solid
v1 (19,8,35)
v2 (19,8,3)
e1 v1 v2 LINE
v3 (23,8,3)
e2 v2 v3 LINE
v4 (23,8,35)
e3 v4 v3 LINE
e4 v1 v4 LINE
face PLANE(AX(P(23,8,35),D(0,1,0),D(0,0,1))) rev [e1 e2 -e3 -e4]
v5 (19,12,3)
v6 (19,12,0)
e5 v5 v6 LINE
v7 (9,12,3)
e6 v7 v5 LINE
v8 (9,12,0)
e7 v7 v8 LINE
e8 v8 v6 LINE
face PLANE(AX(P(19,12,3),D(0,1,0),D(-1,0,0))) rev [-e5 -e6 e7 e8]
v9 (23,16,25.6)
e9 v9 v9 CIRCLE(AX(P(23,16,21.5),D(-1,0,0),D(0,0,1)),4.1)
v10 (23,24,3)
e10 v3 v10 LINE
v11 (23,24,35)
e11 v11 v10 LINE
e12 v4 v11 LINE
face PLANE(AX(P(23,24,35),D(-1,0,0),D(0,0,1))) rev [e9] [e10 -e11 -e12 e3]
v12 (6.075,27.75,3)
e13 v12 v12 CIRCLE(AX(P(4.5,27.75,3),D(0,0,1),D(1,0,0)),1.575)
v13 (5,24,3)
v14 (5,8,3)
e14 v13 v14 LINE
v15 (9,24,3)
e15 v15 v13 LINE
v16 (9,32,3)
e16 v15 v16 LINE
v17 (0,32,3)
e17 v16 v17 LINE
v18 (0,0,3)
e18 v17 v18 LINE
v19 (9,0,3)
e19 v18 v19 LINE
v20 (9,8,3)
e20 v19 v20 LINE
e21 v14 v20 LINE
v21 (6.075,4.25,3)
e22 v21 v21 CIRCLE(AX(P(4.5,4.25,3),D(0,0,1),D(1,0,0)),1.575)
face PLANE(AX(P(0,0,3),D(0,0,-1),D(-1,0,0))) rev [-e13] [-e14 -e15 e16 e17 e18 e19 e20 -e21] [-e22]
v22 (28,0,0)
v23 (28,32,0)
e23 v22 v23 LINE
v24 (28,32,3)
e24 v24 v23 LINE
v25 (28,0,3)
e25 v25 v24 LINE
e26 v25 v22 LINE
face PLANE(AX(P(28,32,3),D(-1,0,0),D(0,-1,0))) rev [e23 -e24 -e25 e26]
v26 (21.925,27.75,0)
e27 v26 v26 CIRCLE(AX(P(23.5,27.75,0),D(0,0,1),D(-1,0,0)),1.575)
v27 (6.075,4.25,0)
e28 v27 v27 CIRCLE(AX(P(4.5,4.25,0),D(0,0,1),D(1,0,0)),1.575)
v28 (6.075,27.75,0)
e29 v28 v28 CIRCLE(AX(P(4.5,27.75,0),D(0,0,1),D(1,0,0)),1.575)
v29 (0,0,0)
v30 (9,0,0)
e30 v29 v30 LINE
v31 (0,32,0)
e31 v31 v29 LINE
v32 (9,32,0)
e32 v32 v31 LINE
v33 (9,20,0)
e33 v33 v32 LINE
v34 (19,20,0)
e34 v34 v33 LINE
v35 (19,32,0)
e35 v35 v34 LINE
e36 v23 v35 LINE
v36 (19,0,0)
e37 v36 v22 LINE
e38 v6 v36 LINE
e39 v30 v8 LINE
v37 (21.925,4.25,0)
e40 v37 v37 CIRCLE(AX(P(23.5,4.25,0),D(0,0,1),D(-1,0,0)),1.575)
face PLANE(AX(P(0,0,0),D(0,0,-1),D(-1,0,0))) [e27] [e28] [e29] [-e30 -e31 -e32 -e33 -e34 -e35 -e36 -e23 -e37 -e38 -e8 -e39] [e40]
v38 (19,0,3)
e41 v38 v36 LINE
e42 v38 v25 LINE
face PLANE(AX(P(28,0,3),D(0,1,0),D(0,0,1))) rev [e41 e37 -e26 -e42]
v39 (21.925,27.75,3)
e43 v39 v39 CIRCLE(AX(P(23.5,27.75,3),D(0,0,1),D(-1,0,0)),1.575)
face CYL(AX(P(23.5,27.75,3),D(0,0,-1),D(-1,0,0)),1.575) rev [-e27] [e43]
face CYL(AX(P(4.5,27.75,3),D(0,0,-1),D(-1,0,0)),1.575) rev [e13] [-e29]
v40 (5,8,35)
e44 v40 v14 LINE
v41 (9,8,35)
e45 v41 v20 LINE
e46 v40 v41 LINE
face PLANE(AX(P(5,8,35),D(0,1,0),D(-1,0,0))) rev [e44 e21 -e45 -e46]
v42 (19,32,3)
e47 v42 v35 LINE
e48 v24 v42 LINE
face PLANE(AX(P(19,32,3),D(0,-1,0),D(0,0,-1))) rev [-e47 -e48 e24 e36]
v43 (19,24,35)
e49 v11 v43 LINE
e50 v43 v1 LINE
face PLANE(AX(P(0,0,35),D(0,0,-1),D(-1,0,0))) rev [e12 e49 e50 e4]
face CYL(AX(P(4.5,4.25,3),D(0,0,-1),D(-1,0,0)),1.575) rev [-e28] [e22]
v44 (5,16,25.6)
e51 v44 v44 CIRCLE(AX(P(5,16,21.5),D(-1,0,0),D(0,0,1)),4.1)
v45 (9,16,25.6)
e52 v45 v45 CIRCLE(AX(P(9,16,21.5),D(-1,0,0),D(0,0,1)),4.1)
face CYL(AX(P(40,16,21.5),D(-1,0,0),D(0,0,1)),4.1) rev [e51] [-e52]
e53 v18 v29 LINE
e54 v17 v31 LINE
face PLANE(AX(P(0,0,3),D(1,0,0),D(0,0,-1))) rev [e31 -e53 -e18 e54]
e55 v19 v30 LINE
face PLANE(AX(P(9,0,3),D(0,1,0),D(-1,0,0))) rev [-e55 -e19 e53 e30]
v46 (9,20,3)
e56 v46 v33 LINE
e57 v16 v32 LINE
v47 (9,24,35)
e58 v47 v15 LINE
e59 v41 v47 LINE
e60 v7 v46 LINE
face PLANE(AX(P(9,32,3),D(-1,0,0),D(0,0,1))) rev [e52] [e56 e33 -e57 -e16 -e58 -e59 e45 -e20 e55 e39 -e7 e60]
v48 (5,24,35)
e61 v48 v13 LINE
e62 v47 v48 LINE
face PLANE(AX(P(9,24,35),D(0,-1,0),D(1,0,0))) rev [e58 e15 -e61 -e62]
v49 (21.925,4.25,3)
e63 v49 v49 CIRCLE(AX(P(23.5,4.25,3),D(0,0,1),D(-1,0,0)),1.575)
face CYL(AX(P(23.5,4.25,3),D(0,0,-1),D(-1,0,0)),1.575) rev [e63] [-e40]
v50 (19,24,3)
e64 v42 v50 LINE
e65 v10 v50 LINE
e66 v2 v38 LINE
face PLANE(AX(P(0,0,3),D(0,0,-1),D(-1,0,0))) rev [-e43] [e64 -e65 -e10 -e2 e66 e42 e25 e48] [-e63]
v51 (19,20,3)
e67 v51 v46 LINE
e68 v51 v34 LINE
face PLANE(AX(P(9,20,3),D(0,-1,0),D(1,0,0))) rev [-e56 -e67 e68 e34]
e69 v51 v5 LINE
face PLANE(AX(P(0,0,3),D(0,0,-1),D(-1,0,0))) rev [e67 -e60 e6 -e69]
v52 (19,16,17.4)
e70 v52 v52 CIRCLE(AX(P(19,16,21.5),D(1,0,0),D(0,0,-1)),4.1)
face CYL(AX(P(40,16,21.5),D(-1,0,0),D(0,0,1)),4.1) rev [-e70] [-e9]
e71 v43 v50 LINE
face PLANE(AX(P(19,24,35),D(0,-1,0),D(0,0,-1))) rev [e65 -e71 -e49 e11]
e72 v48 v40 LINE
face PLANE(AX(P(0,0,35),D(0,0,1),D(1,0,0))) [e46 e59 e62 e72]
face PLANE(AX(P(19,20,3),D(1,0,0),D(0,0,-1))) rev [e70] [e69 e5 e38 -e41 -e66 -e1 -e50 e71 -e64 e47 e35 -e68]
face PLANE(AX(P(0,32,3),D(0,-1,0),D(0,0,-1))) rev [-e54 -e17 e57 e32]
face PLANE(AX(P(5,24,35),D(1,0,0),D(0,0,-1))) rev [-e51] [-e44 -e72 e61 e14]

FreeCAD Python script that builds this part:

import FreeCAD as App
import Part
import Sketcher
Q = App.Units.Quantity


def add_polygon(sketch, points):
    """Adds a closed chain of lines whose ends are joined by coincident constraints."""
    first, n = sketch.GeometryCount, len(points)
    for a, b in zip(points, points[1:] + points[:1]):
        sketch.addGeometry(Part.LineSegment(App.Vector(*a, 0), App.Vector(*b, 0)), False)
    for i in range(n):
        sketch.addConstraint(Sketcher.Constraint("Coincident", first + i, 2, first + (i + 1) % n, 1))

doc = App.newDocument("Part")
body = doc.addObject("PartDesign::Body", "Body")

# Sketch on XY plane
sketch1 = doc.addObject("Sketcher::SketchObject", "Sketch")
body.addObject(sketch1)
sketch1.AttachmentSupport = (doc.XY_Plane, [""])
sketch1.MapMode = "FlatFace"
add_polygon(sketch1, [(0, 32), (0, 0), (9, 0), (9, 12), (19, 12), (19, 0), (28, 0), (28, 32), (19, 32), (19, 20), (9, 20), (9, 32)])  # lines 0-11
sketch1.addGeometry(Part.Circle(App.Vector(23.5, 4.25, 0), App.Vector(0, 0, 1), 1.575), False)  # 12
sketch1.addGeometry(Part.Circle(App.Vector(4.5, 4.25, 0), App.Vector(0, 0, 1), 1.575), False)  # 13
sketch1.addGeometry(Part.Circle(App.Vector(23.5, 27.75, 0), App.Vector(0, 0, 1), 1.575), False)  # 14
sketch1.addGeometry(Part.Circle(App.Vector(4.5, 27.75, 0), App.Vector(0, 0, 1), 1.575), False)  # 15
sketch1.addConstraint([
    Sketcher.Constraint("Vertical", 0),
    Sketcher.Constraint("Horizontal", 1),
    Sketcher.Constraint("Vertical", 2),
    Sketcher.Constraint("Horizontal", 3),
    Sketcher.Constraint("Vertical", 4),
    Sketcher.Constraint("Horizontal", 5),
    Sketcher.Constraint("Vertical", 6),
    Sketcher.Constraint("Horizontal", 7),
    Sketcher.Constraint("Vertical", 8),
    Sketcher.Constraint("Horizontal", 9),
    Sketcher.Constraint("Vertical", 10),
    Sketcher.Constraint("Horizontal", 11),
    Sketcher.Constraint("Coincident", 0, 2, -1, 1),
    Sketcher.Constraint("Equal", 12, 13),
    Sketcher.Constraint("Equal", 13, 14),
    Sketcher.Constraint("Equal", 14, 15),
    Sketcher.Constraint("PointOnObject", 4, 2, -1),
    Sketcher.Constraint("Horizontal", 12, 3, 13, 3),
    Sketcher.Constraint("Horizontal", 14, 3, 15, 3),
    Sketcher.Constraint("Horizontal", 7, 2, 10, 2),
    Sketcher.Constraint("Vertical", 12, 3, 14, 3),
    Sketcher.Constraint("Vertical", 13, 3, 15, 3),
    Sketcher.Constraint("Vertical", 4, 2, 7, 2),
    Sketcher.Constraint("Vertical", 2, 2, 9, 2),
    Sketcher.Constraint("Equal", 1, 5),
    Sketcher.Constraint("Equal", 4, 8),
    Sketcher.Constraint("Diameter", 12, Q("3.15 mm")),
    Sketcher.Constraint("DistanceX", 1, 1, 1, 2, Q("9 mm")),
    Sketcher.Constraint("DistanceX", 3, 1, 3, 2, Q("10 mm")),
    Sketcher.Constraint("DistanceY", 0, 2, 0, 1, Q("32 mm")),
    Sketcher.Constraint("DistanceY", 2, 1, 2, 2, Q("12 mm")),
    Sketcher.Constraint("DistanceX", 13, 3, 12, 3, Q("19 mm")),
    Sketcher.Constraint("DistanceX", -1, 1, 12, 3, Q("23.5 mm")),
    Sketcher.Constraint("DistanceY", 12, 3, 14, 3, Q("23.5 mm")),
    Sketcher.Constraint("DistanceY", -1, 1, 12, 3, Q("4.25 mm")),
])
pad1 = doc.addObject("PartDesign::Pad", "Pad")
body.addObject(pad1)
pad1.Profile = sketch1
pad1.Length = 3

# Sketch on XY plane
sketch2 = doc.addObject("Sketcher::SketchObject", "Sketch001")
body.addObject(sketch2)
sketch2.AttachmentSupport = (doc.XY_Plane, [""])
sketch2.MapMode = "FlatFace"
sketch2.AttachmentOffset = App.Placement(App.Vector(0, 0, 3), App.Rotation())
add_polygon(sketch2, [(5, 24), (5, 8), (9, 8), (9, 24)])  # lines 0-3
add_polygon(sketch2, [(19, 24), (19, 8), (23, 8), (23, 24)])  # lines 4-7
sketch2.addConstraint([
    Sketcher.Constraint("Vertical", 0),
    Sketcher.Constraint("Horizontal", 1),
    Sketcher.Constraint("Vertical", 2),
    Sketcher.Constraint("Horizontal", 3),
    Sketcher.Constraint("Vertical", 4),
    Sketcher.Constraint("Horizontal", 5),
    Sketcher.Constraint("Vertical", 6),
    Sketcher.Constraint("Horizontal", 7),
    Sketcher.Constraint("Horizontal", 1, 2, 4, 2),
    Sketcher.Constraint("Horizontal", 3, 2, 6, 2),
    Sketcher.Constraint("Equal", 3, 5),
    Sketcher.Constraint("DistanceX", 1, 1, 1, 2, Q("4 mm")),
    Sketcher.Constraint("DistanceY", 0, 2, 0, 1, Q("16 mm")),
    Sketcher.Constraint("DistanceX", -1, 1, 0, 2, Q("5 mm")),
    Sketcher.Constraint("DistanceY", -1, 1, 0, 2, Q("8 mm")),
    Sketcher.Constraint("DistanceX", -1, 1, 4, 2, Q("19 mm")),
])
pad2 = doc.addObject("PartDesign::Pad", "Pad001")
body.addObject(pad2)
pad2.Profile = sketch2
pad2.Length = 32

# Sketch on YZ plane
sketch3 = doc.addObject("Sketcher::SketchObject", "Sketch002")
body.addObject(sketch3)
sketch3.AttachmentSupport = (doc.YZ_Plane, [""])
sketch3.MapMode = "FlatFace"
sketch3.AttachmentOffset = App.Placement(App.Vector(0, 0, 5), App.Rotation())
sketch3.addGeometry(Part.Circle(App.Vector(16, 21.5, 0), App.Vector(0, 0, 1), 4.1), False)
sketch3.addConstraint([
    Sketcher.Constraint("Diameter", 0, Q("8.2 mm")),
    Sketcher.Constraint("DistanceX", -1, 1, 0, 3, Q("16 mm")),
    Sketcher.Constraint("DistanceY", -1, 1, 0, 3, Q("21.5 mm")),
])
pocket1 = doc.addObject("PartDesign::Pocket", "Pocket")
body.addObject(pocket1)
pocket1.Profile = sketch3
pocket1.Length = 35
pocket1.Reversed = True

doc.recompute()
